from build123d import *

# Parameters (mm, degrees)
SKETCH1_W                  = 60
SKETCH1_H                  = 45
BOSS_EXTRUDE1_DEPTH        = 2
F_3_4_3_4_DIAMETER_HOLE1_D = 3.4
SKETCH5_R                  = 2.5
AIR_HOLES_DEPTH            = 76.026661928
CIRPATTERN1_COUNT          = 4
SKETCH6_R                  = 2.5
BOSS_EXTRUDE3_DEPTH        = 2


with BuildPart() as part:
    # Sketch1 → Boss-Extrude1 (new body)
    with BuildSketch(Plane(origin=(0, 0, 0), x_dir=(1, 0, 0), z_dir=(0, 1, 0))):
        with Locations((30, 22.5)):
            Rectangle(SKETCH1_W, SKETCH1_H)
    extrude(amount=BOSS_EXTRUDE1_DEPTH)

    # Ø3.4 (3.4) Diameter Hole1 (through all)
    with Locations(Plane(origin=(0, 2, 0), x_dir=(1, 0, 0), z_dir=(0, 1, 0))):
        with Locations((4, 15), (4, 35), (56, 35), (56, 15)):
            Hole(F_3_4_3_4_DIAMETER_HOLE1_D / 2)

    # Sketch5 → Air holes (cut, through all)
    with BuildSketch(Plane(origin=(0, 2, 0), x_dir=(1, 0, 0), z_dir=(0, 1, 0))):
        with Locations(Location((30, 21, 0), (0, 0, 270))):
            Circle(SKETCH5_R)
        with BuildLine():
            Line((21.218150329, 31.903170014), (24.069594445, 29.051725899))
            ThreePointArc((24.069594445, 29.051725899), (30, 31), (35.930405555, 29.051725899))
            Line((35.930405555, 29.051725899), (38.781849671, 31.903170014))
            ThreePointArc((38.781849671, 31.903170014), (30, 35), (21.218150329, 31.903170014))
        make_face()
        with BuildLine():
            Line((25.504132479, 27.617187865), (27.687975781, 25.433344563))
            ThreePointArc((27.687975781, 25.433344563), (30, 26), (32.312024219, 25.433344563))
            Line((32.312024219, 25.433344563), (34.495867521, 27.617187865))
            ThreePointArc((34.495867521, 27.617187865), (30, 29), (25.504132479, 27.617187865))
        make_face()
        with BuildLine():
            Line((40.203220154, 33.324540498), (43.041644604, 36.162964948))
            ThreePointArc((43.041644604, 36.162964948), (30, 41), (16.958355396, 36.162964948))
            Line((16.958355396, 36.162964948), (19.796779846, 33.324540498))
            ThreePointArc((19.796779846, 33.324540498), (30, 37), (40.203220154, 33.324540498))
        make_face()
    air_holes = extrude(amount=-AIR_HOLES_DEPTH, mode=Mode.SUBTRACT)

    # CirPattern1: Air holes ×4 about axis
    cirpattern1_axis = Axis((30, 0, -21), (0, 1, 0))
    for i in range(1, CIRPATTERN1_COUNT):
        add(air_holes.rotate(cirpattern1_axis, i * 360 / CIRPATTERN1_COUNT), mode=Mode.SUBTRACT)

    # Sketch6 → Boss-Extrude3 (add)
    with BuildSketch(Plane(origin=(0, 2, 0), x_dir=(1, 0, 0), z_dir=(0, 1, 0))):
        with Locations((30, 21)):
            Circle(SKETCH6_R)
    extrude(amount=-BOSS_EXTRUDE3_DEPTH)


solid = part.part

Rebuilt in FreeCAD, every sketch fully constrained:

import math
import FreeCAD as App
import Part
import Sketcher

V = App.Vector


def add_polygon(sketch, points):
    """Adds a closed chain of lines whose ends are joined by coincident constraints."""
    first, n = sketch.GeometryCount, len(points)
    for a, b in zip(points, points[1:] + points[:1]):
        sketch.addGeometry(Part.LineSegment(App.Vector(*a, 0), App.Vector(*b, 0)), False)
    for i in range(n):
        sketch.addConstraint(Sketcher.Constraint("Coincident", first + i, 2, first + (i + 1) % n, 1))

doc = App.newDocument("Part")
body = doc.addObject("PartDesign::Body", "Body")

# Sketch on XZ plane
sketch1 = body.newObject("Sketcher::SketchObject", "Sketch")
sketch1.AttachmentSupport = (doc.getObject("XZ_Plane"), [""])
sketch1.MapMode = "FlatFace"
add_polygon(sketch1, [(0, -45), (0, 0), (60, 0), (60, -45)])  # lines 0-3
sketch1.addConstraint(Sketcher.Constraint("Vertical", 0))
sketch1.addConstraint(Sketcher.Constraint("Horizontal", 1))
sketch1.addConstraint(Sketcher.Constraint("Vertical", 2))
sketch1.addConstraint(Sketcher.Constraint("Horizontal", 3))
sketch1.addConstraint(Sketcher.Constraint("Coincident", 0, 2, -1, 1))
sketch1.addConstraint(Sketcher.Constraint("DistanceX", 1, 1, 1, 2, 60.0))
sketch1.addConstraint(Sketcher.Constraint("DistanceY", 0, 1, 0, 2, 45.0))
pad1 = body.newObject("PartDesign::Pad", "Pad")
pad1.Profile = sketch1
pad1.Length = 2
pad1.Reversed = True

# Sketch on XZ plane
sketch2 = body.newObject("Sketcher::SketchObject", "Sketch001")
sketch2.AttachmentSupport = (doc.getObject("XZ_Plane"), [""])
sketch2.MapMode = "FlatFace"
sketch2.AttachmentOffset = App.Placement(V(0, 0, -2), App.Rotation())
sketch2.addGeometry(Part.Circle(V(4, -15, 0), V(0, 0, 1), 1.7), False)
sketch2.addGeometry(Part.Circle(V(4, -35, 0), V(0, 0, 1), 1.7), False)
sketch2.addGeometry(Part.Circle(V(56, -35, 0), V(0, 0, 1), 1.7), False)
sketch2.addGeometry(Part.Circle(V(56, -15, 0), V(0, 0, 1), 1.7), False)
sketch2.addConstraint(Sketcher.Constraint("Equal", 0, 1))
sketch2.addConstraint(Sketcher.Constraint("Equal", 1, 2))
sketch2.addConstraint(Sketcher.Constraint("Equal", 2, 3))
sketch2.addConstraint(Sketcher.Constraint("Horizontal", 1, 3, 2, 3))
sketch2.addConstraint(Sketcher.Constraint("Horizontal", 0, 3, 3, 3))
sketch2.addConstraint(Sketcher.Constraint("Vertical", 0, 3, 1, 3))
sketch2.addConstraint(Sketcher.Constraint("Vertical", 2, 3, 3, 3))
sketch2.addConstraint(Sketcher.Constraint("Diameter", 0, 3.4))
sketch2.addConstraint(Sketcher.Constraint("DistanceX", -1, 1, 0, 3, 4.0))
sketch2.addConstraint(Sketcher.Constraint("DistanceY", 0, 3, -1, 1, 15.0))
sketch2.addConstraint(Sketcher.Constraint("DistanceY", 1, 3, -1, 1, 35.0))
sketch2.addConstraint(Sketcher.Constraint("DistanceX", -1, 1, 2, 3, 56.0))
doc.recompute()
hole = body.newObject("PartDesign::Hole", "Hole")
hole.Profile = sketch2
hole.ThreadType = "None"
hole.Diameter = 3.4
hole.DepthType = "ThroughAll"
hole.Reversed = True

# Sketch on XZ plane
sketch3 = body.newObject("Sketcher::SketchObject", "Sketch002")
sketch3.AttachmentSupport = (doc.getObject("XZ_Plane"), [""])
sketch3.MapMode = "FlatFace"
sketch3.AttachmentOffset = App.Placement(V(0, 0, -2), App.Rotation())
sketch3.addGeometry(Part.Circle(V(30, -21, 0), V(0, 0, 1), 2.5), False)
sketch3.addGeometry(Part.LineSegment(V(21.2, -31.9, 0), V(24.1, -29.1, 0)), False)
sketch3.addGeometry(Part.ArcOfCircle(Part.Circle(V(30, -21, 0), V(0, 0, 1), 10), math.radians(-126), math.radians(-54)), False)
sketch3.addGeometry(Part.LineSegment(V(35.9, -29.1, 0), V(38.8, -31.9, 0)), False)
sketch3.addGeometry(Part.ArcOfCircle(Part.Circle(V(30, -21, 0), V(0, 0, 1), 14), math.radians(-129), math.radians(-51)), False)
sketch3.addGeometry(Part.LineSegment(V(25.5, -27.6, 0), V(27.7, -25.4, 0)), False)
sketch3.addGeometry(Part.ArcOfCircle(Part.Circle(V(30, -21, 0), V(0, 0, 1), 5), math.radians(-118), math.radians(-62)), False)
sketch3.addGeometry(Part.LineSegment(V(32.3, -25.4, 0), V(34.5, -27.6, 0)), False)
sketch3.addGeometry(Part.ArcOfCircle(Part.Circle(V(30, -21, 0), V(0, 0, 1), 8), math.radians(-124), math.radians(-56)), False)
sketch3.addGeometry(Part.LineSegment(V(40.2, -33.3, 0), V(43, -36.2, 0)), False)
sketch3.addGeometry(Part.ArcOfCircle(Part.Circle(V(30, -21, 0), V(0, 0, 1), 20), math.radians(-131), math.radians(-49)), False)
sketch3.addGeometry(Part.LineSegment(V(17, -36.2, 0), V(19.8, -33.3, 0)), False)
sketch3.addGeometry(Part.ArcOfCircle(Part.Circle(V(30, -21, 0), V(0, 0, 1), 16), math.radians(-130), math.radians(-50)), False)
sketch3.addConstraint(Sketcher.Constraint("Coincident", 1, 2, 2, 1))
sketch3.addConstraint(Sketcher.Constraint("Coincident", 2, 2, 3, 1))
sketch3.addConstraint(Sketcher.Constraint("Coincident", 3, 2, 4, 2))
sketch3.addConstraint(Sketcher.Constraint("Coincident", 4, 1, 1, 1))
sketch3.addConstraint(Sketcher.Constraint("Coincident", 5, 2, 6, 1))
sketch3.addConstraint(Sketcher.Constraint("Coincident", 6, 2, 7, 1))
sketch3.addConstraint(Sketcher.Constraint("Coincident", 7, 2, 8, 2))
sketch3.addConstraint(Sketcher.Constraint("Coincident", 8, 1, 5, 1))
sketch3.addConstraint(Sketcher.Constraint("Coincident", 9, 2, 10, 2))
sketch3.addConstraint(Sketcher.Constraint("Coincident", 10, 1, 11, 1))
sketch3.addConstraint(Sketcher.Constraint("Coincident", 11, 2, 12, 1))
sketch3.addConstraint(Sketcher.Constraint("Coincident", 12, 2, 9, 1))
sketch3.addConstraint(Sketcher.Constraint("Coincident", 2, 3, 0, 3))
sketch3.addConstraint(Sketcher.Constraint("Coincident", 4, 3, 0, 3))
sketch3.addConstraint(Sketcher.Constraint("Coincident", 6, 3, 0, 3))
sketch3.addConstraint(Sketcher.Constraint("Coincident", 8, 3, 0, 3))
sketch3.addConstraint(Sketcher.Constraint("Coincident", 10, 3, 0, 3))
sketch3.addConstraint(Sketcher.Constraint("Coincident", 12, 3, 0, 3))
sketch3.addConstraint(Sketcher.Constraint("Perpendicular", 1, 3))
sketch3.addConstraint(Sketcher.Constraint("Perpendicular", 3, 5))
sketch3.addConstraint(Sketcher.Constraint("Perpendicular", 5, 7))
sketch3.addConstraint(Sketcher.Constraint("Parallel", 7, 9))
sketch3.addConstraint(Sketcher.Constraint("Perpendicular", 9, 11))
sketch3.addConstraint(Sketcher.Constraint("Horizontal", 1, 2, 2, 2))
sketch3.addConstraint(Sketcher.Constraint("Horizontal", 3, 2, 4, 1))
sketch3.addConstraint(Sketcher.Constraint("Horizontal", 5, 2, 6, 2))
sketch3.addConstraint(Sketcher.Constraint("Horizontal", 9, 2, 10, 1))
sketch3.addConstraint(Sketcher.Constraint("Diameter", 0, 5.0))
sketch3.addConstraint(Sketcher.Constraint("Radius", 2, 10.0))
sketch3.addConstraint(Sketcher.Constraint("Radius", 4, 14.0))
sketch3.addConstraint(Sketcher.Constraint("Radius", 6, 5.0))
sketch3.addConstraint(Sketcher.Constraint("Radius", 8, 8.0))
sketch3.addConstraint(Sketcher.Constraint("Radius", 10, 20.0))
sketch3.addConstraint(Sketcher.Constraint("Radius", 12, 16.0))
sketch3.addConstraint(Sketcher.Constraint("DistanceX", -1, 1, 0, 3, 30.0))
sketch3.addConstraint(Sketcher.Constraint("DistanceY", 0, 3, -1, 1, 21.0))
sketch3.addConstraint(Sketcher.Constraint("Distance", 1, 4.032551))
sketch3.addConstraint(Sketcher.Constraint("Distance", 5, 3.088421))
sketch3.addConstraint(Sketcher.Constraint("Distance", 9, 4.014138))
pocket1 = body.newObject("PartDesign::Pocket", "Pocket")
pocket1.Profile = sketch3
pocket1.Type = "ThroughAll"
pocket1.Reversed = True
doc.recompute()

datumline = body.newObject("PartDesign::Line", "DatumLine")
datumline.Placement = App.Placement(V(30, 0, -21), App.Rotation(V(0, 0, 1), V(0, 1, 0)))
polarpattern = body.newObject("PartDesign::PolarPattern", "PolarPattern")
polarpattern.Originals = [pocket1]
polarpattern.Axis = (datumline, [""])
polarpattern.Angle = 360
polarpattern.Occurrences = 4
body.Tip = polarpattern

# Sketch on XZ plane
sketch4 = body.newObject("Sketcher::SketchObject", "Sketch003")
sketch4.AttachmentSupport = (doc.getObject("XZ_Plane"), [""])
sketch4.MapMode = "FlatFace"
sketch4.AttachmentOffset = App.Placement(V(0, 0, -2), App.Rotation())
sketch4.addGeometry(Part.Circle(V(30, -21, 0), V(0, 0, 1), 2.5), False)
sketch4.addConstraint(Sketcher.Constraint("Diameter", 0, 5.0))
sketch4.addConstraint(Sketcher.Constraint("DistanceX", -1, 1, 0, 3, 30.0))
sketch4.addConstraint(Sketcher.Constraint("DistanceY", 0, 3, -1, 1, 21.0))
pad2 = body.newObject("PartDesign::Pad", "Pad001")
pad2.Profile = sketch4
pad2.Length = 2

doc.recompute()
